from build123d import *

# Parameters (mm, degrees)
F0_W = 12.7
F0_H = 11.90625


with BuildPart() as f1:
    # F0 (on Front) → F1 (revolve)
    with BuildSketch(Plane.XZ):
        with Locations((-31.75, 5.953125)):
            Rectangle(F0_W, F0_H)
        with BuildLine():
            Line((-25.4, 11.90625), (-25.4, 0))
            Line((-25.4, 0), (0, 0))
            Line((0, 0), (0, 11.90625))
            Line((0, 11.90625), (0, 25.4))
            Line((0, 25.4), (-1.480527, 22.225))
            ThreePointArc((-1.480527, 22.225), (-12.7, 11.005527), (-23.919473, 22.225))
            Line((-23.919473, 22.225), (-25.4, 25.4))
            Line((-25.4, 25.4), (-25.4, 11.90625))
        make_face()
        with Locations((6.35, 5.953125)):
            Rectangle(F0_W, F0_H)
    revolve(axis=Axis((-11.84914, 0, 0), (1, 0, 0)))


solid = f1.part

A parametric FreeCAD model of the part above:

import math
import FreeCAD as App
import Part
import Sketcher

V = App.Vector
Q = App.Units.Quantity

doc = App.newDocument("Part")
body = doc.addObject("PartDesign::Body", "Body")

# Sketch on XZ plane
sketch1 = doc.addObject("Sketcher::SketchObject", "Sketch")
body.addObject(sketch1)
sketch1.AttachmentSupport = (doc.XZ_Plane, [""])
sketch1.MapMode = "FlatFace"
sketch1.addGeometry(Part.LineSegment(V(-38.1, 11.9, 0), V(-38.1, 0, 0)), False)
sketch1.addGeometry(Part.LineSegment(V(-38.1, 0, 0), V(12.7, 0, 0)), False)
sketch1.addGeometry(Part.LineSegment(V(12.7, 0, 0), V(12.7, 11.9, 0)), False)
sketch1.addGeometry(Part.LineSegment(V(12.7, 11.9, 0), V(0, 11.9, 0)), False)
sketch1.addGeometry(Part.LineSegment(V(0, 11.9, 0), V(0, 25.4, 0)), False)
sketch1.addGeometry(Part.LineSegment(V(0, 25.4, 0), V(-1.5, 22.2, 0)), False)
sketch1.addGeometry(Part.ArcOfCircle(Part.Circle(V(-12.7, 22.2, 0), V(0, 0, 1), 11.2), math.radians(180), math.radians(360)), False)
sketch1.addGeometry(Part.LineSegment(V(-23.9, 22.2, 0), V(-25.4, 25.4, 0)), False)
sketch1.addGeometry(Part.LineSegment(V(-25.4, 25.4, 0), V(-25.4, 11.9, 0)), False)
sketch1.addGeometry(Part.LineSegment(V(-25.4, 11.9, 0), V(-38.1, 11.9, 0)), False)
sketch1.addConstraint(Sketcher.Constraint("Coincident", 0, 2, 1, 1))
sketch1.addConstraint(Sketcher.Constraint("Coincident", 1, 2, 2, 1))
sketch1.addConstraint(Sketcher.Constraint("Coincident", 2, 2, 3, 1))
sketch1.addConstraint(Sketcher.Constraint("Coincident", 3, 2, 4, 1))
sketch1.addConstraint(Sketcher.Constraint("Coincident", 4, 2, 5, 1))
sketch1.addConstraint(Sketcher.Constraint("Coincident", 5, 2, 6, 2))
sketch1.addConstraint(Sketcher.Constraint("Coincident", 6, 1, 7, 1))
sketch1.addConstraint(Sketcher.Constraint("Coincident", 7, 2, 8, 1))
sketch1.addConstraint(Sketcher.Constraint("Coincident", 8, 2, 9, 1))
sketch1.addConstraint(Sketcher.Constraint("Coincident", 9, 2, 0, 1))
sketch1.addConstraint(Sketcher.Constraint("Vertical", 0))
sketch1.addConstraint(Sketcher.Constraint("Horizontal", 1))
sketch1.addConstraint(Sketcher.Constraint("Vertical", 2))
sketch1.addConstraint(Sketcher.Constraint("Horizontal", 3))
sketch1.addConstraint(Sketcher.Constraint("Vertical", 4))
sketch1.addConstraint(Sketcher.Constraint("Vertical", 8))
sketch1.addConstraint(Sketcher.Constraint("Horizontal", 9))
sketch1.addConstraint(Sketcher.Constraint("PointOnObject", 0, 2, -1))
sketch1.addConstraint(Sketcher.Constraint("PointOnObject", 3, 2, -2))
sketch1.addConstraint(Sketcher.Constraint("Horizontal", 6, 3, 5, 2))
sketch1.addConstraint(Sketcher.Constraint("Horizontal", 5, 2, 6, 1))
sketch1.addConstraint(Sketcher.Constraint("Horizontal", 4, 2, 7, 2))
sketch1.addConstraint(Sketcher.Constraint("Horizontal", 3, 2, 8, 2))
sketch1.addConstraint(Sketcher.Constraint("Equal", 3, 9))
sketch1.addConstraint(Sketcher.Constraint("Equal", 5, 7))
sketch1.addConstraint(Sketcher.Constraint("DistanceX", 1, 1, 1, 2, Q("2 in")))
sketch1.addConstraint(Sketcher.Constraint("DistanceX", 3, 2, 3, 1, Q("0.5 in")))
sketch1.addConstraint(Sketcher.Constraint("DistanceY", -1, 1, 4, 2, Q("1 in")))
sketch1.addConstraint(Sketcher.Constraint("Angle", 5, Q("-115.000003 deg")))
sketch1.addConstraint(Sketcher.Constraint("DistanceY", 0, 2, 0, 1, Q("0.46875 in")))
sketch1.addConstraint(Sketcher.Constraint("DistanceY", -1, 1, 6, 3, Q("0.875 in")))
revolution = doc.addObject("PartDesign::Revolution", "Revolution")
body.addObject(revolution)
revolution.Profile = sketch1
revolution.ReferenceAxis = (sketch1, ["H_Axis"])
revolution.Angle = 360

doc.recompute()
